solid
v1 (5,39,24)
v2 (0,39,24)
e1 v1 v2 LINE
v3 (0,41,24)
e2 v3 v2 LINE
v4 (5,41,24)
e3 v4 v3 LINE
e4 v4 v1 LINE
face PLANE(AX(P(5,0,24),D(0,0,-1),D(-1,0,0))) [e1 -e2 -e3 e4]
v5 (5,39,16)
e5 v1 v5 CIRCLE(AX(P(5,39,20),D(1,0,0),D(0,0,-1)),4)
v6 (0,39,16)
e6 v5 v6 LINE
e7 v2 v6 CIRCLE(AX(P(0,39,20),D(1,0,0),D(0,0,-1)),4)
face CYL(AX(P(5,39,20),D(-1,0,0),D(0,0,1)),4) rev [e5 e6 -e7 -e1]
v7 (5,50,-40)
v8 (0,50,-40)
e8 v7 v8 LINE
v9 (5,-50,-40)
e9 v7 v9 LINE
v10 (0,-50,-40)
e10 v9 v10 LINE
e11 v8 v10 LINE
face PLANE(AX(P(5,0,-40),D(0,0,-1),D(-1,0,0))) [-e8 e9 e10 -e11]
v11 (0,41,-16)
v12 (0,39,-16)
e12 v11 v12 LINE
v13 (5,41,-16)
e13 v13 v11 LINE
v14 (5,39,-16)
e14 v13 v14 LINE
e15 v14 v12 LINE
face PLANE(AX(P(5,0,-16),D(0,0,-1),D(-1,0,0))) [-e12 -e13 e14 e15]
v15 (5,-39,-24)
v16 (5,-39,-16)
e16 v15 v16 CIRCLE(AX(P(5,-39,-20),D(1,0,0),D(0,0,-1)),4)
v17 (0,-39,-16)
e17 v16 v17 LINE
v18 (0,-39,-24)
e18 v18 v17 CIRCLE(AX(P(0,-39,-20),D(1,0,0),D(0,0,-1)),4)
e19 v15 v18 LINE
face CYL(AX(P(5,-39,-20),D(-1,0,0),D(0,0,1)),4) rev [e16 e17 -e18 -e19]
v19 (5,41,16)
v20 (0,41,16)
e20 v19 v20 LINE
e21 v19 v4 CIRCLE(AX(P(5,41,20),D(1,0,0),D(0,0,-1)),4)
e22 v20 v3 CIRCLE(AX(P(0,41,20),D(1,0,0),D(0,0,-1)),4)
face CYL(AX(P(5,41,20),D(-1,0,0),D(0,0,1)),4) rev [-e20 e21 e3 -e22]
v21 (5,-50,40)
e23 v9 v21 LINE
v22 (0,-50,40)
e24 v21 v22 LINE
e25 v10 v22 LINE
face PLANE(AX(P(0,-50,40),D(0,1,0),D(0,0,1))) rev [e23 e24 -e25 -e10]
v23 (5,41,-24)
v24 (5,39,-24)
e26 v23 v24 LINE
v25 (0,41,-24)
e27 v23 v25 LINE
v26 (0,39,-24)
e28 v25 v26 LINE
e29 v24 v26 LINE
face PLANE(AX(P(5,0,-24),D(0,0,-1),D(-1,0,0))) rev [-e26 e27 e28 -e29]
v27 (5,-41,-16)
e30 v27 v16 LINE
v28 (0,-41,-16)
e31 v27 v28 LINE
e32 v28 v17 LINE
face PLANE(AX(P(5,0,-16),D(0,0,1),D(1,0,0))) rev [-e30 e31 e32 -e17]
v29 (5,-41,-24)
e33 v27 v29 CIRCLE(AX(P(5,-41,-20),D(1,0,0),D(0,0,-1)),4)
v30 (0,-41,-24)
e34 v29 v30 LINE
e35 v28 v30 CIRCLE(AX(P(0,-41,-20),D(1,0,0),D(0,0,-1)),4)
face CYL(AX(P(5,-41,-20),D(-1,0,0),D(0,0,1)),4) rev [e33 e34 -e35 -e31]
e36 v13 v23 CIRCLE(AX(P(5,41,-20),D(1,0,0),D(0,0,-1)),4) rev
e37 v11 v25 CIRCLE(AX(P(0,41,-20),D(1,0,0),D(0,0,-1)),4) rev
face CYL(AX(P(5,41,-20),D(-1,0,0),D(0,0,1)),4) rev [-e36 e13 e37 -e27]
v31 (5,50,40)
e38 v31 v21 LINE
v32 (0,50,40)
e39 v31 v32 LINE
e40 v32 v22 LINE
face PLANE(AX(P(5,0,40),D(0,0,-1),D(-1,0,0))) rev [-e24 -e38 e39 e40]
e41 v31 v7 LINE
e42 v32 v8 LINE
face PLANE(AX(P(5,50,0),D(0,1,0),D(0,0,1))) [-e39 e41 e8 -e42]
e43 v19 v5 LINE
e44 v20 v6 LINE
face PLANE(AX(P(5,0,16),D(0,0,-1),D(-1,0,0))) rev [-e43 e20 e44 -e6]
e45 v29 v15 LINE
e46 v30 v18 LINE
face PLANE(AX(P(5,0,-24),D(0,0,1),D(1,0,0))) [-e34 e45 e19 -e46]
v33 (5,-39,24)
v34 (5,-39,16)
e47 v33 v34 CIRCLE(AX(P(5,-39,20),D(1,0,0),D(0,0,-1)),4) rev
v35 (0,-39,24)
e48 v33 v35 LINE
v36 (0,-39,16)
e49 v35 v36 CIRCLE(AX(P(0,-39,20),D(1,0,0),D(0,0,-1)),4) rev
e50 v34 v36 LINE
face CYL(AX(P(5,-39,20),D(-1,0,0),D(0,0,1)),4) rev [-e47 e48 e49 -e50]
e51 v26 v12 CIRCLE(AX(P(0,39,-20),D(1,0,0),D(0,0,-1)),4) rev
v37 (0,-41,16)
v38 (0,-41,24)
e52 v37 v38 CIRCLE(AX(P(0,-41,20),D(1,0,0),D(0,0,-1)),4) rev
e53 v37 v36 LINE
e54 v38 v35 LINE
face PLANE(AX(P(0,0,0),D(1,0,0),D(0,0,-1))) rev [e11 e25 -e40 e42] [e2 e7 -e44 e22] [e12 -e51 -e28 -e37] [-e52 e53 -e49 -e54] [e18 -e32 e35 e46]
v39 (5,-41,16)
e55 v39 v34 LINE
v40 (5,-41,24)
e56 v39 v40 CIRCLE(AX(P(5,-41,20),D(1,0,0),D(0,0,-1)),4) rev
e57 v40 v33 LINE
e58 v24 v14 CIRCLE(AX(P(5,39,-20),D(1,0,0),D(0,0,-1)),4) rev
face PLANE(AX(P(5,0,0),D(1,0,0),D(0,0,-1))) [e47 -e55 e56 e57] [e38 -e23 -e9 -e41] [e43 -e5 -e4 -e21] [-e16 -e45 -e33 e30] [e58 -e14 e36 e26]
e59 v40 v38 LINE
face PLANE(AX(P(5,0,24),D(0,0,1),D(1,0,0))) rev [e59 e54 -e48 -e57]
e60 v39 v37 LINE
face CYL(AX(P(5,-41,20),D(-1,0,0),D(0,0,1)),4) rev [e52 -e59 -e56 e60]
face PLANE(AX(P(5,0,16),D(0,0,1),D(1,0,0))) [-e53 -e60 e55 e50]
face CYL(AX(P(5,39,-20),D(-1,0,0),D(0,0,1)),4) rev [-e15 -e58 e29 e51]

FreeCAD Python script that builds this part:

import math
import FreeCAD as App
import Part
import Sketcher

V = App.Vector


def add_polygon(sketch, points):
    """Adds a closed chain of lines whose ends are joined by coincident constraints."""
    first, n = sketch.GeometryCount, len(points)
    for a, b in zip(points, points[1:] + points[:1]):
        sketch.addGeometry(Part.LineSegment(App.Vector(*a, 0), App.Vector(*b, 0)), False)
    for i in range(n):
        sketch.addConstraint(Sketcher.Constraint("Coincident", first + i, 2, first + (i + 1) % n, 1))

doc = App.newDocument("Part")
body = doc.addObject("PartDesign::Body", "Body")

sketch1 = body.newObject("Sketcher::SketchObject", "Sketch")
sketch1.AttachmentSupport = (doc.getObject("YZ_Plane"), [""])
sketch1.MapMode = "FlatFace"
sketch1.addGeometry(Part.LineSegment(V(50, 40, 0), V(-50, 40, 0)), False)
sketch1.addGeometry(Part.LineSegment(V(-50, 40, 0), V(-86, 18.5, 0)), False)
sketch1.addGeometry(Part.ArcOfCircle(Part.Circle(V(-75, 0, 0), V(0, 0, 1), 21.5), math.radians(121), math.radians(239)), False)
sketch1.addGeometry(Part.LineSegment(V(-86, -18.5, 0), V(-50, -40, 0)), False)
sketch1.addGeometry(Part.LineSegment(V(-50, -40, 0), V(50, -40, 0)), False)
sketch1.addGeometry(Part.LineSegment(V(50, -40, 0), V(50, 40, 0)), False)
sketch1.addGeometry(Part.Circle(V(-75, 17.5, 0), V(0, 0, 1), 2), False)
sketch1.addGeometry(Part.ArcOfCircle(Part.Circle(V(-41, 20, 0), V(0, 0, 1), 4), math.radians(90), math.radians(270)), False)
sketch1.addGeometry(Part.LineSegment(V(-41, 24, 0), V(-39, 24, 0)), False)
sketch1.addGeometry(Part.ArcOfCircle(Part.Circle(V(-39, 20, 0), V(0, 0, 1), 4), math.radians(-90), math.radians(90)), False)
sketch1.addGeometry(Part.LineSegment(V(-39, 16, 0), V(-41, 16, 0)), False)
sketch1.addGeometry(Part.Circle(V(-92.5, 0, 0), V(0, 0, 1), 2), False)
sketch1.addGeometry(Part.Circle(V(-75, 0, 0), V(0, 0, 1), 14), False)
sketch1.addGeometry(Part.Circle(V(-75, -17.5, 0), V(0, 0, 1), 2), False)
sketch1.addGeometry(Part.Circle(V(-57.5, 0, 0), V(0, 0, 1), 2), False)
sketch1.addGeometry(Part.ArcOfCircle(Part.Circle(V(-39, -20, 0), V(0, 0, 1), 4), math.radians(-90), math.radians(90)), False)
sketch1.addGeometry(Part.LineSegment(V(-39, -24, 0), V(-41, -24, 0)), False)
sketch1.addGeometry(Part.ArcOfCircle(Part.Circle(V(-41, -20, 0), V(0, 0, 1), 4), math.radians(90), math.radians(270)), False)
sketch1.addGeometry(Part.LineSegment(V(-41, -16, 0), V(-39, -16, 0)), False)
sketch1.addGeometry(Part.ArcOfCircle(Part.Circle(V(39, 20, 0), V(0, 0, 1), 4), math.radians(90), math.radians(270)), False)
sketch1.addGeometry(Part.LineSegment(V(39, 24, 0), V(41, 24, 0)), False)
sketch1.addGeometry(Part.ArcOfCircle(Part.Circle(V(41, 20, 0), V(0, 0, 1), 4), math.radians(-90), math.radians(90)), False)
sketch1.addGeometry(Part.LineSegment(V(41, 16, 0), V(39, 16, 0)), False)
sketch1.addGeometry(Part.ArcOfCircle(Part.Circle(V(41, -20, 0), V(0, 0, 1), 4), math.radians(-90), math.radians(90)), False)
sketch1.addGeometry(Part.LineSegment(V(41, -24, 0), V(39, -24, 0)), False)
sketch1.addGeometry(Part.ArcOfCircle(Part.Circle(V(39, -20, 0), V(0, 0, 1), 4), math.radians(90), math.radians(270)), False)
sketch1.addGeometry(Part.LineSegment(V(39, -16, 0), V(41, -16, 0)), False)
sketch1.addConstraint(Sketcher.Constraint("Coincident", 0, 2, 1, 1))
sketch1.addConstraint(Sketcher.Constraint("Tangent", 1, 2, 2, 1))
sketch1.addConstraint(Sketcher.Constraint("Tangent", 2, 2, 3, 1))
sketch1.addConstraint(Sketcher.Constraint("Coincident", 3, 2, 4, 1))
sketch1.addConstraint(Sketcher.Constraint("Coincident", 4, 2, 5, 1))
sketch1.addConstraint(Sketcher.Constraint("Coincident", 5, 2, 0, 1))
sketch1.addConstraint(Sketcher.Constraint("Tangent", 7, 1, 8, 1))
sketch1.addConstraint(Sketcher.Constraint("Tangent", 8, 2, 9, 2))
sketch1.addConstraint(Sketcher.Constraint("Tangent", 9, 1, 10, 1))
sketch1.addConstraint(Sketcher.Constraint("Tangent", 10, 2, 7, 2))
sketch1.addConstraint(Sketcher.Constraint("Tangent", 15, 1, 16, 1))
sketch1.addConstraint(Sketcher.Constraint("Tangent", 16, 2, 17, 2))
sketch1.addConstraint(Sketcher.Constraint("Tangent", 17, 1, 18, 1))
sketch1.addConstraint(Sketcher.Constraint("Tangent", 18, 2, 15, 2))
sketch1.addConstraint(Sketcher.Constraint("Tangent", 19, 1, 20, 1))
sketch1.addConstraint(Sketcher.Constraint("Tangent", 20, 2, 21, 2))
sketch1.addConstraint(Sketcher.Constraint("Tangent", 21, 1, 22, 1))
sketch1.addConstraint(Sketcher.Constraint("Tangent", 22, 2, 19, 2))
sketch1.addConstraint(Sketcher.Constraint("Tangent", 23, 1, 24, 1))
sketch1.addConstraint(Sketcher.Constraint("Tangent", 24, 2, 25, 2))
sketch1.addConstraint(Sketcher.Constraint("Tangent", 25, 1, 26, 1))
sketch1.addConstraint(Sketcher.Constraint("Tangent", 26, 2, 23, 2))
sketch1.addConstraint(Sketcher.Constraint("Horizontal", 0))
sketch1.addConstraint(Sketcher.Constraint("Horizontal", 4))
sketch1.addConstraint(Sketcher.Constraint("Vertical", 5))
sketch1.addConstraint(Sketcher.Constraint("Horizontal", 8))
sketch1.addConstraint(Sketcher.Constraint("Horizontal", 10))
sketch1.addConstraint(Sketcher.Constraint("Horizontal", 16))
sketch1.addConstraint(Sketcher.Constraint("Horizontal", 18))
sketch1.addConstraint(Sketcher.Constraint("Horizontal", 20))
sketch1.addConstraint(Sketcher.Constraint("Horizontal", 22))
sketch1.addConstraint(Sketcher.Constraint("Horizontal", 24))
sketch1.addConstraint(Sketcher.Constraint("Horizontal", 26))
sketch1.addConstraint(Sketcher.Constraint("Coincident", 12, 3, 2, 3))
sketch1.addConstraint(Sketcher.Constraint("Equal", 6, 11))
sketch1.addConstraint(Sketcher.Constraint("Equal", 11, 13))
sketch1.addConstraint(Sketcher.Constraint("Equal", 13, 14))
sketch1.addConstraint(Sketcher.Constraint("Equal", 9, 15))
sketch1.addConstraint(Sketcher.Constraint("Equal", 17, 19))
sketch1.addConstraint(Sketcher.Constraint("Equal", 21, 23))
sketch1.addConstraint(Sketcher.Constraint("Symmetric", 15, 3, 19, 3, -1, 1))
sketch1.addConstraint(Sketcher.Constraint("Symmetric", 7, 3, 23, 3, -1, 1))
sketch1.addConstraint(Sketcher.Constraint("Symmetric", 0, 2, 4, 2, -1, 1))
sketch1.addConstraint(Sketcher.Constraint("Symmetric", 9, 3, 19, 3, -2))
sketch1.addConstraint(Sketcher.Constraint("Symmetric", 6, 3, 13, 3, -1))
sketch1.addConstraint(Sketcher.Constraint("Symmetric", 1, 2, 2, 2, -1))
sketch1.addConstraint(Sketcher.Constraint("PointOnObject", 11, 3, -1))
sketch1.addConstraint(Sketcher.Constraint("PointOnObject", 14, 3, -1))
sketch1.addConstraint(Sketcher.Constraint("Vertical", 2, 3, 6, 3))
sketch1.addConstraint(Sketcher.Constraint("Vertical", 7, 3, 17, 3))
sketch1.addConstraint(Sketcher.Constraint("Vertical", 21, 3, 23, 3))
sketch1.addConstraint(Sketcher.Constraint("Vertical", 19, 3, 25, 3))
sketch1.addConstraint(Sketcher.Constraint("Diameter", 6, 4.0))
sketch1.addConstraint(Sketcher.Constraint("Diameter", 12, 28.0))
sketch1.addConstraint(Sketcher.Constraint("Radius", 7, 4.0))
sketch1.addConstraint(Sketcher.Constraint("Radius", 2, 21.5))
sketch1.addConstraint(Sketcher.Constraint("DistanceX", 0, 2, 0, 1, 100.0))
sketch1.addConstraint(Sketcher.Constraint("DistanceX", 8, 1, 8, 2, 2.0))
sketch1.addConstraint(Sketcher.Constraint("DistanceY", 5, 1, 5, 2, 80.0))
sketch1.addConstraint(Sketcher.Constraint("DistanceX", 2, 3, -1, 1, 75.0))
sketch1.addConstraint(Sketcher.Constraint("DistanceX", 7, 3, -1, 1, 41.0))
sketch1.addConstraint(Sketcher.Constraint("DistanceY", -1, 1, 7, 3, 20.0))
sketch1.addConstraint(Sketcher.Constraint("DistanceY", 13, 3, 6, 3, 35.0))
sketch1.addConstraint(Sketcher.Constraint("DistanceX", 11, 3, -1, 1, 92.5))
sketch1.addConstraint(Sketcher.Constraint("DistanceX", 14, 3, -1, 1, 57.5))
pad1 = body.newObject("PartDesign::Pad", "Pad")
pad1.Profile = sketch1
pad1.Length = 5

sketch2 = body.newObject("Sketcher::SketchObject", "Sketch001")
sketch2.AttachmentSupport = (doc.getObject("YZ_Plane"), [""])
sketch2.MapMode = "FlatFace"
sketch2.AttachmentOffset = App.Placement(V(0, 0, 5), App.Rotation())
add_polygon(sketch2, [(-50, 40), (-105, 40), (-105, -40), (-50, -40)])
sketch2.addConstraint(Sketcher.Constraint("Horizontal", 0))
sketch2.addConstraint(Sketcher.Constraint("Vertical", 1))
sketch2.addConstraint(Sketcher.Constraint("Horizontal", 2))
sketch2.addConstraint(Sketcher.Constraint("Vertical", 3))
sketch2.addConstraint(Sketcher.Constraint("DistanceY", 1, 2, 1, 1, 80.0))
sketch2.addConstraint(Sketcher.Constraint("DistanceY", -1, 1, 0, 2, 40.0))
sketch2.addConstraint(Sketcher.Constraint("DistanceX", 2, 2, -1, 1, 50.0))
sketch2.addConstraint(Sketcher.Constraint("DistanceX", 0, 2, 0, 1, 55.127756))
pocket1 = body.newObject("PartDesign::Pocket", "Pocket")
pocket1.Profile = sketch2
pocket1.Type = "ThroughAll"

doc.recompute()
